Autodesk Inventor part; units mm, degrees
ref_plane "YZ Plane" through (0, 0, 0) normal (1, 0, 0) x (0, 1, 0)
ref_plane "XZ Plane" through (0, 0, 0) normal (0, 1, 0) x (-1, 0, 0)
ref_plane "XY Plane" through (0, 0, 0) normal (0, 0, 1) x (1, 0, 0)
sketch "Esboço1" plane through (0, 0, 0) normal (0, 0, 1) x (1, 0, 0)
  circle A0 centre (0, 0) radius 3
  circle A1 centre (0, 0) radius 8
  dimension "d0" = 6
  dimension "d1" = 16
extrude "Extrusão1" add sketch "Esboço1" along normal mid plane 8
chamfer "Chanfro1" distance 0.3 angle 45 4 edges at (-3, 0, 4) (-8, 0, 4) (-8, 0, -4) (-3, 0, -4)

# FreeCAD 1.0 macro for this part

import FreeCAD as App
import Part
import Sketcher

V = App.Vector


def edges_at(feature, points):
    """Names of the edges that pass closest to the given points."""
    edges = feature.Shape.Edges
    near = lambda p: min(range(len(edges)), key=lambda i: edges[i].distToShape(Part.Vertex(*p))[0])
    return sorted({f"Edge{near(p) + 1}" for p in points})

doc = App.newDocument("Part")
body = doc.addObject("PartDesign::Body", "Body")

# Sketch on XY plane
sketch1 = body.newObject("Sketcher::SketchObject", "Sketch")
sketch1.AttachmentSupport = (doc.getObject("XY_Plane"), [""])
sketch1.MapMode = "FlatFace"
sketch1.addGeometry([
    Part.Circle(V(0, 0, 0), V(0, 0, 1), 8),
    Part.Circle(V(0, 0, 0), V(0, 0, 1), 3),
], False)
sketch1.addConstraint([
    Sketcher.Constraint("Coincident", 0, 3, -1, 1),
    Sketcher.Constraint("Coincident", 1, 3, -1, 1),
    Sketcher.Constraint("Diameter", 0, 16.0),
    Sketcher.Constraint("Diameter", 1, 6.0),
])
pad1 = body.newObject("PartDesign::Pad", "Pad")
pad1.Profile = sketch1
pad1.Length = 8
pad1.Midplane = True
doc.recompute()

chamfer = body.newObject("PartDesign::Chamfer", "Chamfer")
chamfer.Base = (pad1, edges_at(pad1, [
    (-3, 0, 4),
    (-8, 0, 4),
    (-8, 0, -4),
    (-3, 0, -4),
]))
chamfer.Size = 0.3

doc.recompute()
